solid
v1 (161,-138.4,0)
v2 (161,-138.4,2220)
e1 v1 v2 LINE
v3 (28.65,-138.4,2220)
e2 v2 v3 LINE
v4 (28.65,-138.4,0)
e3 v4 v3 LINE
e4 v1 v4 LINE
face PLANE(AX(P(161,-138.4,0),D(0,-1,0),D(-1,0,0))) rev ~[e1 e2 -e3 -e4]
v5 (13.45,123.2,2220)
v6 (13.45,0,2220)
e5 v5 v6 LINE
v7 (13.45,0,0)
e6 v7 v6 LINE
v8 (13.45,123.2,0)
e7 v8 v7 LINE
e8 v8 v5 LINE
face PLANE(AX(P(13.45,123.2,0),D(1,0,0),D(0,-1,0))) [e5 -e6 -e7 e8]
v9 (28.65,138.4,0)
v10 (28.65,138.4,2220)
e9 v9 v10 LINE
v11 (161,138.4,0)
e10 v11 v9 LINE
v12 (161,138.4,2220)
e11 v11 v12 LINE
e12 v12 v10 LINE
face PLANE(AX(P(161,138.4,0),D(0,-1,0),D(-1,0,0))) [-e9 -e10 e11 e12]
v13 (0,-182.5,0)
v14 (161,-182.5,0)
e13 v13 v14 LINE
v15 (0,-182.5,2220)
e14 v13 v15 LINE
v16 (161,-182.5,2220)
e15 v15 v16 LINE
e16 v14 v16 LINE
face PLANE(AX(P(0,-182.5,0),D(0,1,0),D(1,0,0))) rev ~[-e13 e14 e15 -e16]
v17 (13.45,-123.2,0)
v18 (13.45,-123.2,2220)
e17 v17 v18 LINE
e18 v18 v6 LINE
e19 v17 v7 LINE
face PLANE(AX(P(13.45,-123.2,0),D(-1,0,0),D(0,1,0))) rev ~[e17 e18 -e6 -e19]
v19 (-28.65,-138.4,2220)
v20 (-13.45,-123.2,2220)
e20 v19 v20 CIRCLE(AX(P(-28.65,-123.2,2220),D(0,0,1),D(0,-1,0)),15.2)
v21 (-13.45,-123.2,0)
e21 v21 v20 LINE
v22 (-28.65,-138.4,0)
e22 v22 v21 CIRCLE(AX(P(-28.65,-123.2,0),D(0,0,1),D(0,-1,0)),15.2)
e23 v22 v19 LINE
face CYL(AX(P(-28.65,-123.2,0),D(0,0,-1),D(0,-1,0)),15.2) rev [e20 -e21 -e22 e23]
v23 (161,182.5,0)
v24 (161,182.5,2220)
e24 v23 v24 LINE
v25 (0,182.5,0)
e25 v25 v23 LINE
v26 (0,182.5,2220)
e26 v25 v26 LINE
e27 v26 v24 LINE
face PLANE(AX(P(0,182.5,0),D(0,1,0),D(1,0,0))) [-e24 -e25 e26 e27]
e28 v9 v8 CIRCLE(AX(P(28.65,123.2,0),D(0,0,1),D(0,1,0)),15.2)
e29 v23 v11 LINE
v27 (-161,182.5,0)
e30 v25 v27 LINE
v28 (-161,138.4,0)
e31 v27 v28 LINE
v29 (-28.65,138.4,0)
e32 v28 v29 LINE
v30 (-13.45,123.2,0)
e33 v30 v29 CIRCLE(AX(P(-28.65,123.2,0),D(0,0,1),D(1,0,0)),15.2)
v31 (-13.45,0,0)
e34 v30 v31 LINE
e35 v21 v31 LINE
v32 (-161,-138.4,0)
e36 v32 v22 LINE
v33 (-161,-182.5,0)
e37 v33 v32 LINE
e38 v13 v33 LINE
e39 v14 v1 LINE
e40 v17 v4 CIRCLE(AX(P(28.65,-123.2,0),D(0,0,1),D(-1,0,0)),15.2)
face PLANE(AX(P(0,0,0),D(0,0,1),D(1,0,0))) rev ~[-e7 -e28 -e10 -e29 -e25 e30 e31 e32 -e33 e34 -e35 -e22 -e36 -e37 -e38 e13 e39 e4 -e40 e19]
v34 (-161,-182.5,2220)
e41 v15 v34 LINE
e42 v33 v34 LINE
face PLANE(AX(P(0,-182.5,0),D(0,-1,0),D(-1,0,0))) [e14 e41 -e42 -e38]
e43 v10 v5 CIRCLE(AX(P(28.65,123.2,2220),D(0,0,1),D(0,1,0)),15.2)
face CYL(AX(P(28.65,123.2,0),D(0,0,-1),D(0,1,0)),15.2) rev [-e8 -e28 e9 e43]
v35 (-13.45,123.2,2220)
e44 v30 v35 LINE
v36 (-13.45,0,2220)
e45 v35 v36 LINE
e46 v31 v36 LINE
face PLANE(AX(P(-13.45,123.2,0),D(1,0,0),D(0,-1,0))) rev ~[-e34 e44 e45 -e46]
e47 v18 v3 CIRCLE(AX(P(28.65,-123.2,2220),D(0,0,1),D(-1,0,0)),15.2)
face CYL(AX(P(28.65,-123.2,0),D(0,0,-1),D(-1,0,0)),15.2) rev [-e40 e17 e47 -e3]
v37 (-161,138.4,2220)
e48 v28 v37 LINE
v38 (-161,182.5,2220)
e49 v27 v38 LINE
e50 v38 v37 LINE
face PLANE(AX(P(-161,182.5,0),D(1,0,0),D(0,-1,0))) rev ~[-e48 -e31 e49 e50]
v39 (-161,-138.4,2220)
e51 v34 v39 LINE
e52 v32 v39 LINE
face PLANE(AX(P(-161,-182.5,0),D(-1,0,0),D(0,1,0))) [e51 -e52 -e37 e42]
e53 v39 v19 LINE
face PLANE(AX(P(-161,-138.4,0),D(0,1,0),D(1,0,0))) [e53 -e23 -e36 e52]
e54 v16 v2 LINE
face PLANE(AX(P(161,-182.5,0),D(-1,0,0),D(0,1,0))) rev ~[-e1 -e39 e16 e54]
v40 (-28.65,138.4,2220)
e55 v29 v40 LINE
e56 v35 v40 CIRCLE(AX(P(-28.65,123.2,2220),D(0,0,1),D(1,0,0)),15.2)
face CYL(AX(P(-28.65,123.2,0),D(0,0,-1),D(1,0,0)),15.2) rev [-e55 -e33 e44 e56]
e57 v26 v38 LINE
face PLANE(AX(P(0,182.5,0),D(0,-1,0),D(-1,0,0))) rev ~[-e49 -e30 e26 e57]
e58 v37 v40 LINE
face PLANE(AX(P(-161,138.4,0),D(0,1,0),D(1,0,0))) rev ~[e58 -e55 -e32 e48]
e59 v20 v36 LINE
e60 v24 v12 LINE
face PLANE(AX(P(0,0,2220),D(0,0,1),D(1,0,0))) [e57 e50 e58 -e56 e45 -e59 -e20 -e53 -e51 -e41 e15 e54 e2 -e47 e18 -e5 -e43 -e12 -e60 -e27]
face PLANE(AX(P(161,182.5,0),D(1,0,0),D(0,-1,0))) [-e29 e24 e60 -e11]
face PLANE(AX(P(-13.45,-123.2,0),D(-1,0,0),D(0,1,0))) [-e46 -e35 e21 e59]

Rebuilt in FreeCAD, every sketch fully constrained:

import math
import FreeCAD as App
import Part
import Sketcher
from FreeCAD import Vector
Q = App.Units.Quantity

doc = App.newDocument("Part")
body = doc.addObject("PartDesign::Body", "Body")

sketch1 = body.newObject("Sketcher::SketchObject", "Sketch")
sketch1.AttachmentSupport = (doc.getObject("XY_Plane"), [""])
sketch1.MapMode = "FlatFace"
sketch1.addGeometry(Part.LineSegment(Vector(-161, -138, 0), Vector(-161, -182, 0)), False)
sketch1.addGeometry(Part.LineSegment(Vector(-161, -182, 0), Vector(161, -182, 0)), False)
sketch1.addGeometry(Part.LineSegment(Vector(161, -182, 0), Vector(161, -138, 0)), False)
sketch1.addGeometry(Part.LineSegment(Vector(161, -138, 0), Vector(29, -138, 0)), False)
sketch1.addGeometry(Part.ArcOfCircle(Part.Circle(Vector(29, -123, 0), Vector(0, 0, 1), 15), math.radians(180), math.radians(270)), False)
sketch1.addGeometry(Part.LineSegment(Vector(13, -123, 0), Vector(13, 123, 0)), False)
sketch1.addGeometry(Part.ArcOfCircle(Part.Circle(Vector(29, 123, 0), Vector(0, 0, 1), 15), math.radians(90), math.radians(180)), False)
sketch1.addGeometry(Part.LineSegment(Vector(29, 138, 0), Vector(161, 138, 0)), False)
sketch1.addGeometry(Part.LineSegment(Vector(161, 138, 0), Vector(161, 182, 0)), False)
sketch1.addGeometry(Part.LineSegment(Vector(161, 182, 0), Vector(-161, 182, 0)), False)
sketch1.addGeometry(Part.LineSegment(Vector(-161, 182, 0), Vector(-161, 138, 0)), False)
sketch1.addGeometry(Part.LineSegment(Vector(-161, 138, 0), Vector(-29, 138, 0)), False)
sketch1.addGeometry(Part.ArcOfCircle(Part.Circle(Vector(-29, 123, 0), Vector(0, 0, 1), 15), math.radians(0), math.radians(90)), False)
sketch1.addGeometry(Part.LineSegment(Vector(-13, 123, 0), Vector(-13, -123, 0)), False)
sketch1.addGeometry(Part.ArcOfCircle(Part.Circle(Vector(-29, -123, 0), Vector(0, 0, 1), 15), math.radians(-90), math.radians(0)), False)
sketch1.addGeometry(Part.LineSegment(Vector(-29, -138, 0), Vector(-161, -138, 0)), False)
sketch1.addConstraint(Sketcher.Constraint("Coincident", 0, 2, 1, 1))
sketch1.addConstraint(Sketcher.Constraint("Coincident", 1, 2, 2, 1))
sketch1.addConstraint(Sketcher.Constraint("Coincident", 2, 2, 3, 1))
sketch1.addConstraint(Sketcher.Constraint("Tangent", 3, 2, 4, 2))
sketch1.addConstraint(Sketcher.Constraint("Tangent", 4, 1, 5, 1))
sketch1.addConstraint(Sketcher.Constraint("Tangent", 5, 2, 6, 2))
sketch1.addConstraint(Sketcher.Constraint("Tangent", 6, 1, 7, 1))
sketch1.addConstraint(Sketcher.Constraint("Coincident", 7, 2, 8, 1))
sketch1.addConstraint(Sketcher.Constraint("Coincident", 8, 2, 9, 1))
sketch1.addConstraint(Sketcher.Constraint("Coincident", 9, 2, 10, 1))
sketch1.addConstraint(Sketcher.Constraint("Coincident", 10, 2, 11, 1))
sketch1.addConstraint(Sketcher.Constraint("Tangent", 11, 2, 12, 2))
sketch1.addConstraint(Sketcher.Constraint("Tangent", 12, 1, 13, 1))
sketch1.addConstraint(Sketcher.Constraint("Tangent", 13, 2, 14, 2))
sketch1.addConstraint(Sketcher.Constraint("Tangent", 14, 1, 15, 1))
sketch1.addConstraint(Sketcher.Constraint("Coincident", 15, 2, 0, 1))
sketch1.addConstraint(Sketcher.Constraint("Vertical", 0))
sketch1.addConstraint(Sketcher.Constraint("Horizontal", 1))
sketch1.addConstraint(Sketcher.Constraint("Vertical", 2))
sketch1.addConstraint(Sketcher.Constraint("Horizontal", 3))
sketch1.addConstraint(Sketcher.Constraint("Vertical", 5))
sketch1.addConstraint(Sketcher.Constraint("Horizontal", 7))
sketch1.addConstraint(Sketcher.Constraint("Vertical", 8))
sketch1.addConstraint(Sketcher.Constraint("Horizontal", 9))
sketch1.addConstraint(Sketcher.Constraint("Vertical", 10))
sketch1.addConstraint(Sketcher.Constraint("Horizontal", 11))
sketch1.addConstraint(Sketcher.Constraint("Vertical", 13))
sketch1.addConstraint(Sketcher.Constraint("Horizontal", 15))
sketch1.addConstraint(Sketcher.Constraint("Equal", 4, 6))
sketch1.addConstraint(Sketcher.Constraint("Equal", 6, 12))
sketch1.addConstraint(Sketcher.Constraint("Equal", 12, 14))
sketch1.addConstraint(Sketcher.Constraint("Symmetric", 4, 3, 12, 3, -1, 1))
sketch1.addConstraint(Sketcher.Constraint("Symmetric", 0, 2, 8, 2, -1, 1))
sketch1.addConstraint(Sketcher.Constraint("Symmetric", 7, 2, 10, 2, -2))
sketch1.addConstraint(Sketcher.Constraint("Symmetric", 2, 2, 15, 2, -2))
sketch1.addConstraint(Sketcher.Constraint("Radius", 4, Q("15.2 mm")))
sketch1.addConstraint(Sketcher.Constraint("DistanceY", 0, 2, 0, 1, Q("44.1 mm")))
sketch1.addConstraint(Sketcher.Constraint("DistanceX", 0, 2, -1, 1, Q("161 mm")))
sketch1.addConstraint(Sketcher.Constraint("DistanceY", 0, 2, -1, 1, Q("182.5 mm")))
sketch1.addConstraint(Sketcher.Constraint("DistanceX", -1, 1, 4, 1, Q("13.45 mm")))
pad1 = body.newObject("PartDesign::Pad", "Pad")
pad1.Profile = sketch1
pad1.Length = 2220

doc.recompute()
